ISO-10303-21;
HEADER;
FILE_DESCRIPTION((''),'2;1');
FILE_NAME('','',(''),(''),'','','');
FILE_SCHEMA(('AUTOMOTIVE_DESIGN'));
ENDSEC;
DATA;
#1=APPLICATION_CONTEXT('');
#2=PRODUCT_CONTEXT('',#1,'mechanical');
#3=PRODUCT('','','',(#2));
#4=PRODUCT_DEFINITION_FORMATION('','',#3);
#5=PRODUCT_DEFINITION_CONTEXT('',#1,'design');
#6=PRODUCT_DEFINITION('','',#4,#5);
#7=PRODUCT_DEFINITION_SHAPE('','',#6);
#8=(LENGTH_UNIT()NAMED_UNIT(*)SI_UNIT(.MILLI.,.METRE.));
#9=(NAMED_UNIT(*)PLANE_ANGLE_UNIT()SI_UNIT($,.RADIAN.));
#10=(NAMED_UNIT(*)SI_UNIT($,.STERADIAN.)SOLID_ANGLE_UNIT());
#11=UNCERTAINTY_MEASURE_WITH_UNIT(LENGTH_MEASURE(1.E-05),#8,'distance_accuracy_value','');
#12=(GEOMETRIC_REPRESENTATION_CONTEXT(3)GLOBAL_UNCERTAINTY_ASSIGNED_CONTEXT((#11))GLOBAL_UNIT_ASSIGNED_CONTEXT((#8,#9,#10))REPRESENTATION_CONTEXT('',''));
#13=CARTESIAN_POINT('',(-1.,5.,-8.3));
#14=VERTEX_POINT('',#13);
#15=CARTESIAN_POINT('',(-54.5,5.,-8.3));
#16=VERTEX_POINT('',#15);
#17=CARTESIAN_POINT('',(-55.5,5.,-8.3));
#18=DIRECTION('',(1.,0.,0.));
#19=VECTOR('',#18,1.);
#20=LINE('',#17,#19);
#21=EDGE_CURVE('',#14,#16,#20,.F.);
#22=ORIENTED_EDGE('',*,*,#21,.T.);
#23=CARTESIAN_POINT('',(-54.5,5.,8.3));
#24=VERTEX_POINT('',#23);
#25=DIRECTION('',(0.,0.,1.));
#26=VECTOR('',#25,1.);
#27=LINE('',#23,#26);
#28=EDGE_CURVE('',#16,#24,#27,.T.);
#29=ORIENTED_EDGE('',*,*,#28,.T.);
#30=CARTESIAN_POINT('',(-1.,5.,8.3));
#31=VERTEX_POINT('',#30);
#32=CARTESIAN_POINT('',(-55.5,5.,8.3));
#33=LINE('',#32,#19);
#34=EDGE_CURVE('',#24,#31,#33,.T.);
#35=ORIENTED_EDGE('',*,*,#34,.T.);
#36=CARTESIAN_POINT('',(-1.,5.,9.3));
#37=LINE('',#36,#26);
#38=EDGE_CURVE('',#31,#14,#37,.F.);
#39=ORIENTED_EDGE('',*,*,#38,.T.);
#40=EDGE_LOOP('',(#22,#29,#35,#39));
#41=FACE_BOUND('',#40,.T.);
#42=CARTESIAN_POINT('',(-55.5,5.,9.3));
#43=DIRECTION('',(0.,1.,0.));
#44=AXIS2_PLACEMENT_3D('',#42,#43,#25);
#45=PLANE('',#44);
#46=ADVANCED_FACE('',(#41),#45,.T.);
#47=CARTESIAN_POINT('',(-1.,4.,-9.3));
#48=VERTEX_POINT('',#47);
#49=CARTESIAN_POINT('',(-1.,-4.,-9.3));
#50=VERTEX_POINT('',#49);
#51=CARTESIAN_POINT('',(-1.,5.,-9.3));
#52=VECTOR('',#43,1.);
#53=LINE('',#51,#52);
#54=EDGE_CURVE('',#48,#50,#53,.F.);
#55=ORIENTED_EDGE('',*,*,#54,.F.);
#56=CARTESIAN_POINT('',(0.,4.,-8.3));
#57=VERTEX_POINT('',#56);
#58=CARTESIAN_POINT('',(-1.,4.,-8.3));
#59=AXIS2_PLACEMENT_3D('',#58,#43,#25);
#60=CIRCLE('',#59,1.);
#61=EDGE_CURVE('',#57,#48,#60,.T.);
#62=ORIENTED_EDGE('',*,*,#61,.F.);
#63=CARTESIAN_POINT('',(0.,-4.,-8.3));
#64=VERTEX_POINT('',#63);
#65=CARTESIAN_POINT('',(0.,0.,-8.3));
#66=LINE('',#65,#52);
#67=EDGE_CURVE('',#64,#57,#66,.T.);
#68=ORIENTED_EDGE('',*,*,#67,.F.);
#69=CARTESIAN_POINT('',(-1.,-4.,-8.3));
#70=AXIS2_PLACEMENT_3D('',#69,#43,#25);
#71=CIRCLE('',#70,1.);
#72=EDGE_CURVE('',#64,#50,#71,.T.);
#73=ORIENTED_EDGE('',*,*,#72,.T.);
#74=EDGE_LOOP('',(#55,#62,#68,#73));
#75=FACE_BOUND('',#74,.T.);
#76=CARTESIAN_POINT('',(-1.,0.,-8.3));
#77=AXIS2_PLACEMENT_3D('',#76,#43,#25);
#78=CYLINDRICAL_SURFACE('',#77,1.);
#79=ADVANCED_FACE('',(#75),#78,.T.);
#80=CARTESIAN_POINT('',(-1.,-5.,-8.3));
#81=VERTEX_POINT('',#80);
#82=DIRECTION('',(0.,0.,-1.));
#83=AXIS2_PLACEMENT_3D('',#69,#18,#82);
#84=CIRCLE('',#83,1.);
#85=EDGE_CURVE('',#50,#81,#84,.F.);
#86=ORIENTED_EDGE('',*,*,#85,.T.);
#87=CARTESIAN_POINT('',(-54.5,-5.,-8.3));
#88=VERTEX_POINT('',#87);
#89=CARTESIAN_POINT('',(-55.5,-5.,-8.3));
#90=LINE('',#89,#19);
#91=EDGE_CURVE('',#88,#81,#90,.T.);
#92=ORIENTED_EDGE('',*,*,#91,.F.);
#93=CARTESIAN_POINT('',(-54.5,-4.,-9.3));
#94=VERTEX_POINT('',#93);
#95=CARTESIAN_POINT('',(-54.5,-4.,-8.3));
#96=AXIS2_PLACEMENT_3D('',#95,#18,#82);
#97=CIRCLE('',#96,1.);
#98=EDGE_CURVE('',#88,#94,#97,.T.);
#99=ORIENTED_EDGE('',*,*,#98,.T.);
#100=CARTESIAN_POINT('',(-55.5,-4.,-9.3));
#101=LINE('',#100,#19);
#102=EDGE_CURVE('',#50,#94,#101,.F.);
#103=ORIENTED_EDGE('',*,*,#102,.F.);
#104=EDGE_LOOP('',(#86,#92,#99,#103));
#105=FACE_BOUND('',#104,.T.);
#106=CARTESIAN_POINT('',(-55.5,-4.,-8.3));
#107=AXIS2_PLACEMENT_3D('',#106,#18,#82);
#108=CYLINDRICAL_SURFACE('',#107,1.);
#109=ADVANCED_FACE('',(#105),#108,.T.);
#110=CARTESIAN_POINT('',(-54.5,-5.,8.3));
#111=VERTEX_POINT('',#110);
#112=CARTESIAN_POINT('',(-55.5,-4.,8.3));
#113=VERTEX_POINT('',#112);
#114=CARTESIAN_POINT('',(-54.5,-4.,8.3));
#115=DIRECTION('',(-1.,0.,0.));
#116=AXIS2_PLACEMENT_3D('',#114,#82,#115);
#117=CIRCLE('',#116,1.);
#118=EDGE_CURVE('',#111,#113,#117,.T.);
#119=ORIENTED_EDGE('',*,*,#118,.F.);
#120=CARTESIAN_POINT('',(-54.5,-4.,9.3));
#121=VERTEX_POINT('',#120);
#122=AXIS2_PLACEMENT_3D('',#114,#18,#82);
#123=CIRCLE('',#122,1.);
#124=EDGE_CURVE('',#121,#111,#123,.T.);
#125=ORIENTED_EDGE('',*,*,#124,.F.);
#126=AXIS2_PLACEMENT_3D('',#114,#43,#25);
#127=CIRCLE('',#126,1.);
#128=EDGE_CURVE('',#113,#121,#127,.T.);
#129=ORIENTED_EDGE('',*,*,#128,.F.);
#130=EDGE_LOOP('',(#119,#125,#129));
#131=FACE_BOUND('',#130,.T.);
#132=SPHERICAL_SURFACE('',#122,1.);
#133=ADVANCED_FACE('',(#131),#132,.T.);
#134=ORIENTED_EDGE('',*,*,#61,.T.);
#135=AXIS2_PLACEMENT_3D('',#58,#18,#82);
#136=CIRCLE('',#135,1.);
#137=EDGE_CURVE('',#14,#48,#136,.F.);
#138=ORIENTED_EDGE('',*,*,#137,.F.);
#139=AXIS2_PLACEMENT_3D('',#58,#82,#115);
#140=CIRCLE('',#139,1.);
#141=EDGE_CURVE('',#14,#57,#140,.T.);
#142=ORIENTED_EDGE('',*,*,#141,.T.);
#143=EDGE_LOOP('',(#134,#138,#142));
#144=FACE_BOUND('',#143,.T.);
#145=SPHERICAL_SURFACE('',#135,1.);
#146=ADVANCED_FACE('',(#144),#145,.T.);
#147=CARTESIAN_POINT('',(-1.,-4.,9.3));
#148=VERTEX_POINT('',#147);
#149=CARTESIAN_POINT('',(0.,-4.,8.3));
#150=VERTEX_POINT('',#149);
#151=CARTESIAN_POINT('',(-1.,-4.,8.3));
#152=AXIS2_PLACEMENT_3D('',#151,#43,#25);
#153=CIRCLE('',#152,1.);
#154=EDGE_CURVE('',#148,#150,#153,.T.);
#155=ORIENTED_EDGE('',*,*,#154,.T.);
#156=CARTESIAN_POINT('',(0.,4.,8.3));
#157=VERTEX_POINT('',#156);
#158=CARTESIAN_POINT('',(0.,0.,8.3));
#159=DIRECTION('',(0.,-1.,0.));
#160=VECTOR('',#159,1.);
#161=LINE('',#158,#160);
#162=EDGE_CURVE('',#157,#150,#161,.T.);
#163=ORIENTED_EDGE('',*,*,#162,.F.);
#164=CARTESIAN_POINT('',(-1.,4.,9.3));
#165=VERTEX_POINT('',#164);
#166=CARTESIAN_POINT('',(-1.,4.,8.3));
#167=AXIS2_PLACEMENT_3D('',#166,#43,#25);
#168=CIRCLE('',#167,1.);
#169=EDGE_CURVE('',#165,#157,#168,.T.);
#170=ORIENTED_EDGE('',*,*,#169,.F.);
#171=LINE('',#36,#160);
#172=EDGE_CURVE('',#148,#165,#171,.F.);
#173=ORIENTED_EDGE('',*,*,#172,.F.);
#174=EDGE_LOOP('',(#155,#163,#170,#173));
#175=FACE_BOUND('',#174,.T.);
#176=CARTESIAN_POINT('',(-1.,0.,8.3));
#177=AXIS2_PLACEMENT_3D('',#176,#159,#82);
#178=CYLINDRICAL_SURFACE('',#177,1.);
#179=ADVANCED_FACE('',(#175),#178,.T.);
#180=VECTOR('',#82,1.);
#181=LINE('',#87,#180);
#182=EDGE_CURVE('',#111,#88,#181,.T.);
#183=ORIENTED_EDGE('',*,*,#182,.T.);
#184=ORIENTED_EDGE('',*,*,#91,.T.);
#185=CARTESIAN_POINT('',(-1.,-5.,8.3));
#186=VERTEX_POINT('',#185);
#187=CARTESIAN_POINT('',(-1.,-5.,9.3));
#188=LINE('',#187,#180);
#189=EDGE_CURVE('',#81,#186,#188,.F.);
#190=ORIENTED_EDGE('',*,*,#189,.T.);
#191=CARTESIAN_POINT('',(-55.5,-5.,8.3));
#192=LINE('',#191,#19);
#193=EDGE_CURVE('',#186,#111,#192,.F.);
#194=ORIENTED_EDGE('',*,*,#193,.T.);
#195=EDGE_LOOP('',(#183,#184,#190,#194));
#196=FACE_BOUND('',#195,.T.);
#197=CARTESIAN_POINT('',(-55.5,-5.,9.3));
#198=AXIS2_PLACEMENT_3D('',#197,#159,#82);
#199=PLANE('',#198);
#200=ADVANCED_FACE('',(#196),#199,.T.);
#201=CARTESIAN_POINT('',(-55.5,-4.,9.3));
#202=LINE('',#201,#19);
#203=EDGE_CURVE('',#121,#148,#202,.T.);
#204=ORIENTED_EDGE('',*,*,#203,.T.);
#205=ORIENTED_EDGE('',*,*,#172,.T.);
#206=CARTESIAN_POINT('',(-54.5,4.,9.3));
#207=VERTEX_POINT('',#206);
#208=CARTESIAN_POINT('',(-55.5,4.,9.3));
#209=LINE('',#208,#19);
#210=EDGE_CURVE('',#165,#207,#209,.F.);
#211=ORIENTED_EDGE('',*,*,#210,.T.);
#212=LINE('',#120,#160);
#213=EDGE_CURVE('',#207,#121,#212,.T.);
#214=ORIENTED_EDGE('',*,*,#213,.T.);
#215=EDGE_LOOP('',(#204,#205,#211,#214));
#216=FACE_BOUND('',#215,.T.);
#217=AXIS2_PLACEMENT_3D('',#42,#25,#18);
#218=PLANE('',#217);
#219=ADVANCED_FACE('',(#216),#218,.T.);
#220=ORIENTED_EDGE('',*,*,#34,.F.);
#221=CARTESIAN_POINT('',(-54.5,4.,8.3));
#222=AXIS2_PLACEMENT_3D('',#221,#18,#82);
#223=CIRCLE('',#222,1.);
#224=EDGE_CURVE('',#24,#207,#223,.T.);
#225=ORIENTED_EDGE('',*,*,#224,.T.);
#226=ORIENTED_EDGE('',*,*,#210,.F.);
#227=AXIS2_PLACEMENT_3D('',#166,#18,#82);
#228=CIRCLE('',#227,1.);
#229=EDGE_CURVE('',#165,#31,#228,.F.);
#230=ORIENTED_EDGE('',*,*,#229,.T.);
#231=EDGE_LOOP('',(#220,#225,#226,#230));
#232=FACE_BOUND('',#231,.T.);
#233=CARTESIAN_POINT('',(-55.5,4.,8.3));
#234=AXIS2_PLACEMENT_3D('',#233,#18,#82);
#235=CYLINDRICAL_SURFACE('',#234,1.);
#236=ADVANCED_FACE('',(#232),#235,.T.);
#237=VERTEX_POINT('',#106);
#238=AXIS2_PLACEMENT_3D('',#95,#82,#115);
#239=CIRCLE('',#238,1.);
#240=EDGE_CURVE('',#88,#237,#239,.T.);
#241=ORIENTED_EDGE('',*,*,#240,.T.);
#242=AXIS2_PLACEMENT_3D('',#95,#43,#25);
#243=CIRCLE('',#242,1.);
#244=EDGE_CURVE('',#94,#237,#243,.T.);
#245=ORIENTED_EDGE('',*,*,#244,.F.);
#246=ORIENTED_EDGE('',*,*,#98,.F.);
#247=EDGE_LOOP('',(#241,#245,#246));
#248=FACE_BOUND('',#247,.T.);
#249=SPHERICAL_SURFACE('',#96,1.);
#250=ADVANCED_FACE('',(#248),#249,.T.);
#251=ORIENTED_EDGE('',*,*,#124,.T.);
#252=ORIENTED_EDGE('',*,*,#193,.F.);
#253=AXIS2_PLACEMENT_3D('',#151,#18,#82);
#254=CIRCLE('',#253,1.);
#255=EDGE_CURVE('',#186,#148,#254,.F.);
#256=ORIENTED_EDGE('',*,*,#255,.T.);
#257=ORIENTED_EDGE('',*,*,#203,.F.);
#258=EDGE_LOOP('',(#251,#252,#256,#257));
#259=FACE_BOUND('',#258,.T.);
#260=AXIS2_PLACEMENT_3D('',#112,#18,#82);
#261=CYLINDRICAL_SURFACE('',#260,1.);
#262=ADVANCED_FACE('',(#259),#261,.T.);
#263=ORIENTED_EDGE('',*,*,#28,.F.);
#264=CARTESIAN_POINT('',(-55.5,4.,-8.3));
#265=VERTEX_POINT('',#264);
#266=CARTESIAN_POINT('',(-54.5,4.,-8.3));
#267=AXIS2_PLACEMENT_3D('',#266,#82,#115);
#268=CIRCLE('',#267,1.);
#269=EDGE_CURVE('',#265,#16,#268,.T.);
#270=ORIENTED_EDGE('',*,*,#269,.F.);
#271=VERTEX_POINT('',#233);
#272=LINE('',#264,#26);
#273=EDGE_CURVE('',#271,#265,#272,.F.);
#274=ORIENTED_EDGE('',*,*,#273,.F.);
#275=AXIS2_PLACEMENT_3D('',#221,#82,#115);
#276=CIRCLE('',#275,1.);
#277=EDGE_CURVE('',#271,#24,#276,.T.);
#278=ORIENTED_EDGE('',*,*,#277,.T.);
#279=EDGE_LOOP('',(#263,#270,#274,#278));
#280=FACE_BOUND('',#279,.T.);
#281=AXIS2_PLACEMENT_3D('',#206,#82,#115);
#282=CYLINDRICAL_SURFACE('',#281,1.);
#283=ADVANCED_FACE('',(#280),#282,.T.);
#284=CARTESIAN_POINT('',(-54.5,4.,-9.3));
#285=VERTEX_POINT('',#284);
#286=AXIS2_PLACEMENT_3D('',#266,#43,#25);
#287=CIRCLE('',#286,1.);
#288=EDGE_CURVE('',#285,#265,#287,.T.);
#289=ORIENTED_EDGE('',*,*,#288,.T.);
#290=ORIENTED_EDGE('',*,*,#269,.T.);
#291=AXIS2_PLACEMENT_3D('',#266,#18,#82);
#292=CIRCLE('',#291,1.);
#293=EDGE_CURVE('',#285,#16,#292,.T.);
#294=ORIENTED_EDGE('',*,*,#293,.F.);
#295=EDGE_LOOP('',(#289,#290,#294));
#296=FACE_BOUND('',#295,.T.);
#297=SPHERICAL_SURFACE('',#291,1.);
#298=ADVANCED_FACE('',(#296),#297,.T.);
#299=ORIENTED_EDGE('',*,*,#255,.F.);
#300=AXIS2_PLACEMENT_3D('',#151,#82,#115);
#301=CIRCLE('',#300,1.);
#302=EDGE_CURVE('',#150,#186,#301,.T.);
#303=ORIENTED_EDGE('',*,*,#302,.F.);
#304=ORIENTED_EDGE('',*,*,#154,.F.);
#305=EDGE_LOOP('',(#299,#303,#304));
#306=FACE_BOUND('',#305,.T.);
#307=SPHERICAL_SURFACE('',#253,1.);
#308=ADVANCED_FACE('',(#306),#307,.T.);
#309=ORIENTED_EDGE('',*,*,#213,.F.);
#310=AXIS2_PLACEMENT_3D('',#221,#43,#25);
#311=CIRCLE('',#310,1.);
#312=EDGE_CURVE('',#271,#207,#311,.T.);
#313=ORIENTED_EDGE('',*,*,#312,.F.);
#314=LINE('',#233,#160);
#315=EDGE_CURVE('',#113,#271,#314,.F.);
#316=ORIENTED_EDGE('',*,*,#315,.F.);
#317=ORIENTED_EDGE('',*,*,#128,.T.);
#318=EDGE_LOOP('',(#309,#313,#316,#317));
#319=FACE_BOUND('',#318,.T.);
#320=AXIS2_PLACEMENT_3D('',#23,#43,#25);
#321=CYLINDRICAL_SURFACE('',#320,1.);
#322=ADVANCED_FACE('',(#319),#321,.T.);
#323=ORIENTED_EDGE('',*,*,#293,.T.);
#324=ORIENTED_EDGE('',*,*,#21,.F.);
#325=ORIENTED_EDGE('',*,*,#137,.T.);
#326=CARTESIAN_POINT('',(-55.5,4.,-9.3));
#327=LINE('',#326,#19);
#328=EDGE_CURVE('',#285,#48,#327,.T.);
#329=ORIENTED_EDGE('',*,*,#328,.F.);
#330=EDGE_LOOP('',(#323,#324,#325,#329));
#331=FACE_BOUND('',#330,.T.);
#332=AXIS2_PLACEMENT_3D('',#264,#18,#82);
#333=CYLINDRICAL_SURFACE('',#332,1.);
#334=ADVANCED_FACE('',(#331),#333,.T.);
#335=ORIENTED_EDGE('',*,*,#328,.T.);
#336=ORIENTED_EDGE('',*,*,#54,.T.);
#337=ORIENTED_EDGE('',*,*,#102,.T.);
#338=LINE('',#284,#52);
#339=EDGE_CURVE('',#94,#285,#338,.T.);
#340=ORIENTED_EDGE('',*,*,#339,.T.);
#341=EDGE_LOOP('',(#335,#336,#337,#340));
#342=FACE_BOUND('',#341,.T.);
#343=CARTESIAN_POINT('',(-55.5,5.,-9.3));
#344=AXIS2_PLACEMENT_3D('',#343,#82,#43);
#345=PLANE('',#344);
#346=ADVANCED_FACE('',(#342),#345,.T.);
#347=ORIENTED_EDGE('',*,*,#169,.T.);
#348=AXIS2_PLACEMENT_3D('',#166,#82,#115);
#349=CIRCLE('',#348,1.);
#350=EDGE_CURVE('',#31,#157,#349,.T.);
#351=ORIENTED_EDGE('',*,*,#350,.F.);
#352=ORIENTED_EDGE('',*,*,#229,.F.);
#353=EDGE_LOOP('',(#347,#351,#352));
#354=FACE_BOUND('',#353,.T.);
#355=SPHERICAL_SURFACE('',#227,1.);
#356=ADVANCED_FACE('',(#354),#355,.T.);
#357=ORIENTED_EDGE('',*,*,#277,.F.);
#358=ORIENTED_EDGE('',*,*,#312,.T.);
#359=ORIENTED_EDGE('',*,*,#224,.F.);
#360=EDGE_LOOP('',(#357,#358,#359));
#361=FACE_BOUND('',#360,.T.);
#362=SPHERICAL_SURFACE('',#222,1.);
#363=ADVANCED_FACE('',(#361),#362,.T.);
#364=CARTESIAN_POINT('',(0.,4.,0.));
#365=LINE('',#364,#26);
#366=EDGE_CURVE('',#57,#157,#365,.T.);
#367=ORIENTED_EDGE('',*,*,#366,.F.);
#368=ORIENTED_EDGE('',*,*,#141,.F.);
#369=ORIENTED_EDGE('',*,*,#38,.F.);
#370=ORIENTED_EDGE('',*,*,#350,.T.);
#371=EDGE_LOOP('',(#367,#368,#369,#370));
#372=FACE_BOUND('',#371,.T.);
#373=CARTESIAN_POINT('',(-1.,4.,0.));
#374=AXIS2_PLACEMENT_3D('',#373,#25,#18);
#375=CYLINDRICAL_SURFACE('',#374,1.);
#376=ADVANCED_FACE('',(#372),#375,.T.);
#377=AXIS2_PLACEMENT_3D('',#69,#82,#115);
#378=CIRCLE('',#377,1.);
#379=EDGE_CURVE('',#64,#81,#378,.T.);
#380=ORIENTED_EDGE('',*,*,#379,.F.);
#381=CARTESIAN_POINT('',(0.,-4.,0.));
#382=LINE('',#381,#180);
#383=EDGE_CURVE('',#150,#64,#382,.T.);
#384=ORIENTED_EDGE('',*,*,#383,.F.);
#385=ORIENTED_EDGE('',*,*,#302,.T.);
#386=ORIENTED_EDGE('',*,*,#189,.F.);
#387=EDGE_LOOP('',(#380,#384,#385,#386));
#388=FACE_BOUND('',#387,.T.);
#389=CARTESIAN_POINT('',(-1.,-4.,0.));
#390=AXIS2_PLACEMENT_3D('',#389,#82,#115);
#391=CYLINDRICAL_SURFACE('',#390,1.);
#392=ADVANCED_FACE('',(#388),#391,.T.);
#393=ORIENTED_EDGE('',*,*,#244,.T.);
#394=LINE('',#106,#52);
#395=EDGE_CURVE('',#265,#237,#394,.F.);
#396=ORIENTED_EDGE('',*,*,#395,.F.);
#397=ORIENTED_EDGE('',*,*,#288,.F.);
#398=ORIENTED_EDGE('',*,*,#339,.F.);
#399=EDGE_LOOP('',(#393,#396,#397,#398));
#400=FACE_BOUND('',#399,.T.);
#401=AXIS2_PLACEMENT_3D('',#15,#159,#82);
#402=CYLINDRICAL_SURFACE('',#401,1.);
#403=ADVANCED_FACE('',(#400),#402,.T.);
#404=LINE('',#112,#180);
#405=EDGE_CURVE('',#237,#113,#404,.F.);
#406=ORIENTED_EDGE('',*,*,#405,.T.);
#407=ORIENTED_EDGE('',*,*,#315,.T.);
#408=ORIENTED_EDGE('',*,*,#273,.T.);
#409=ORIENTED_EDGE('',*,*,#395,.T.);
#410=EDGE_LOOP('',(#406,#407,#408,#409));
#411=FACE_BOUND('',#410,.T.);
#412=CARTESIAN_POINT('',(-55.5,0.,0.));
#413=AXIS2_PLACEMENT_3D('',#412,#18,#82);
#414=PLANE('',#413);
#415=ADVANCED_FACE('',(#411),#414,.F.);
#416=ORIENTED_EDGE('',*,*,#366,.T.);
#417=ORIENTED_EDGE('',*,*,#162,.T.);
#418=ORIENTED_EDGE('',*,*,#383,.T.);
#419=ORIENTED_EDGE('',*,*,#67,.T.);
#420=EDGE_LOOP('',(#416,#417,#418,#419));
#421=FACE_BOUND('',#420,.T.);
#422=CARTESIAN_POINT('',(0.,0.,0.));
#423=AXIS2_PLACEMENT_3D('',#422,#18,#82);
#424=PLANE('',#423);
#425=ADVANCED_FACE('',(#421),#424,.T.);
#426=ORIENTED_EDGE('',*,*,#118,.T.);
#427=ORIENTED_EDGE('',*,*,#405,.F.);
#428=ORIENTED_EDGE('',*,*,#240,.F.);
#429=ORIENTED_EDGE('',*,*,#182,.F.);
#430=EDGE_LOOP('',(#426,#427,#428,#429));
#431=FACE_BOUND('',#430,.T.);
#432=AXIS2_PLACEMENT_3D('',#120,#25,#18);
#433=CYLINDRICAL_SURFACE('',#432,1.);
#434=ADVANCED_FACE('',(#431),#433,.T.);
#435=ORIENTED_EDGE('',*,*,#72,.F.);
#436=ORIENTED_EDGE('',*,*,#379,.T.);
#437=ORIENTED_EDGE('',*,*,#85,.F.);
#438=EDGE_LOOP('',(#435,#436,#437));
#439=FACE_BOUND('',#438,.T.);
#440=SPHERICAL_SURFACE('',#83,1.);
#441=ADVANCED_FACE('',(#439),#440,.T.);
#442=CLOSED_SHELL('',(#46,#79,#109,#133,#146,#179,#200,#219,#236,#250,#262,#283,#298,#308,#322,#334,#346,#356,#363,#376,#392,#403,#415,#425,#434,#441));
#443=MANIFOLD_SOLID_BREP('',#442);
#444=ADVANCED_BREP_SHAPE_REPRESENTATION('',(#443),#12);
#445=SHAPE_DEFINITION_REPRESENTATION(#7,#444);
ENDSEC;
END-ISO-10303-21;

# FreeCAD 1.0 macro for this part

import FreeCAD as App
import Part
import Sketcher
Q = App.Units.Quantity


def edges_at(feature, points):
    """Names of the edges that pass closest to the given points."""
    edges = feature.Shape.Edges
    near = lambda p: min(range(len(edges)), key=lambda i: edges[i].distToShape(Part.Vertex(*p))[0])
    return sorted({f"Edge{near(p) + 1}" for p in points})


def add_polygon(sketch, points):
    """Adds a closed chain of lines whose ends are joined by coincident constraints."""
    first, n = sketch.GeometryCount, len(points)
    for a, b in zip(points, points[1:] + points[:1]):
        sketch.addGeometry(Part.LineSegment(App.Vector(*a, 0), App.Vector(*b, 0)), False)
    for i in range(n):
        sketch.addConstraint(Sketcher.Constraint("Coincident", first + i, 2, first + (i + 1) % n, 1))

doc = App.newDocument("Part")
body = doc.addObject("PartDesign::Body", "Body")

# Sketch on YZ plane
sketch1 = body.newObject("Sketcher::SketchObject", "Sketch")
sketch1.AttachmentSupport = (doc.getObject("YZ_Plane"), [""])
sketch1.MapMode = "FlatFace"
add_polygon(sketch1, [(5, 9), (-5, 9), (-5, -9), (5, -9)])  # lines 0-3
sketch1.addConstraint([
    Sketcher.Constraint("Horizontal", 0),
    Sketcher.Constraint("Vertical", 1),
    Sketcher.Constraint("Horizontal", 2),
    Sketcher.Constraint("Vertical", 3),
    Sketcher.Constraint("Symmetric", 0, 2, 2, 2, -1, 1),
    Sketcher.Constraint("DistanceX", 0, 2, 0, 1, Q("10 mm")),
    Sketcher.Constraint("DistanceY", 1, 2, 1, 1, Q("18.6 mm")),
])
pad1 = body.newObject("PartDesign::Pad", "Pad")
pad1.Profile = sketch1
pad1.Length = 55.5
pad1.Reversed = True
doc.recompute()

fillet = body.newObject("PartDesign::Fillet", "Fillet")
fillet.Base = (pad1, edges_at(pad1, [
    (-27.75, -5, -9.3),
    (-27.75, -5, 9.3),
    (-27.75, 5, 9.3),
    (-27.75, 5, -9.3),
]))
fillet.Radius = 1
doc.recompute()

fillet2 = body.newObject("PartDesign::Fillet", "Fillet001")
fillet2.Base = (fillet, edges_at(fillet, [
    (0, 0, -9.3),
    (-55.5, 0, -9.3),
    (0, 5, 0),
    (0, 0, 9.3),
    (0, -5, 0),
    (0, 4.707, 9.007),
    (0, -4.707, 9.007),
    (0, -4.707, -9.007),
    (0, 4.707, -9.007),
    (-55.5, 5, 0),
    (-55.5, -5, 0),
    (-55.5, 0, 9.3),
    (-55.5, 4.707, 9.007),
    (-55.5, -4.707, 9.007),
    (-55.5, -4.707, -9.007),
    (-55.5, 4.707, -9.007),
]))
fillet2.Radius = 1

doc.recompute()
